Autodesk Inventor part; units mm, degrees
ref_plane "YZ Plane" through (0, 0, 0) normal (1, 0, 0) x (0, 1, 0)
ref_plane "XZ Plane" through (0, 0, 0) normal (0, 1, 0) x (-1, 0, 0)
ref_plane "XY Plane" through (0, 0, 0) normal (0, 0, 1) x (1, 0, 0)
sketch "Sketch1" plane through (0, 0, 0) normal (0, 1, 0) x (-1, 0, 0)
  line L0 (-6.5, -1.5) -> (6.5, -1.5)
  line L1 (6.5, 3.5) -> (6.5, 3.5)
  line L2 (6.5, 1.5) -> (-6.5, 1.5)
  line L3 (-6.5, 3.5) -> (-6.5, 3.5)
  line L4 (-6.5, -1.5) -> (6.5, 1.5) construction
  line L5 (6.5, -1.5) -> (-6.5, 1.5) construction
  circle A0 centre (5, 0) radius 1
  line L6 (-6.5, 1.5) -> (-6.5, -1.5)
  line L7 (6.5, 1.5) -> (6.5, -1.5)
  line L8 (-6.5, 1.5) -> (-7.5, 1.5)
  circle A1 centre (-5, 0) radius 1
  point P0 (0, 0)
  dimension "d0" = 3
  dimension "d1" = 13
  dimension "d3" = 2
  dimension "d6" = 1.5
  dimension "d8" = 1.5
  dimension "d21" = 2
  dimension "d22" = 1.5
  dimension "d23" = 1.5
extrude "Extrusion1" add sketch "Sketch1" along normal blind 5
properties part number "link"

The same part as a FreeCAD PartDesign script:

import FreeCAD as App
import Part
import Sketcher
from FreeCAD import Vector


def add_polygon(sketch, points):
    """Adds a closed chain of lines whose ends are joined by coincident constraints."""
    first, n = sketch.GeometryCount, len(points)
    for a, b in zip(points, points[1:] + points[:1]):
        sketch.addGeometry(Part.LineSegment(App.Vector(*a, 0), App.Vector(*b, 0)), False)
    for i in range(n):
        sketch.addConstraint(Sketcher.Constraint("Coincident", first + i, 2, first + (i + 1) % n, 1))

doc = App.newDocument("Part")
params = doc.addObject("Spreadsheet::Sheet", "Params")
for row, (alias, value) in enumerate([
    ("sketch1_diameter", "2 mm"),
    ("sketch1_width", "13 mm"),
    ("sketch1_height", "3 mm"),
    ("pad1_length", "5 mm"),
], start=1):
    params.set(f"A{row}", alias)
    params.set(f"B{row}", "=" + value)
    params.setAlias(f"B{row}", alias)

body = doc.addObject("PartDesign::Body", "Body")

# Sketch on XZ plane
sketch1 = body.newObject("Sketcher::SketchObject", "Sketch")
sketch1.AttachmentSupport = (doc.getObject("XZ_Plane"), [""])
sketch1.MapMode = "FlatFace"
add_polygon(sketch1, [(6.5, 1.5), (6.5, -1.5), (-6.5, -1.5), (-6.5, 1.5)])  # lines 0-3
sketch1.addGeometry(Part.Circle(Vector(5, 0, 0), Vector(0, 0, 1), 1), False)  # 4
sketch1.addGeometry(Part.Circle(Vector(-5, 0, 0), Vector(0, 0, 1), 1), False)  # 5
sketch1.addConstraint(Sketcher.Constraint("Vertical", 0))
sketch1.addConstraint(Sketcher.Constraint("Horizontal", 1))
sketch1.addConstraint(Sketcher.Constraint("Vertical", 2))
sketch1.addConstraint(Sketcher.Constraint("Horizontal", 3))
sketch1.addConstraint(Sketcher.Constraint("Equal", 4, 5))
sketch1.addConstraint(Sketcher.Constraint("Symmetric", 4, 3, 5, 3, -1, 1))
sketch1.addConstraint(Sketcher.Constraint("Symmetric", 0, 2, 2, 2, -1, 1))
sketch1.addConstraint(Sketcher.Constraint("PointOnObject", 4, 3, -1))
sketch1.addConstraint(Sketcher.Constraint("Diameter", 4, 2.0))
sketch1.addConstraint(Sketcher.Constraint("DistanceX", 1, 2, 1, 1, 13.0))
sketch1.addConstraint(Sketcher.Constraint("DistanceY", 0, 2, 0, 1, 3.0))
sketch1.addConstraint(Sketcher.Constraint("DistanceX", 4, 3, 0, 2, 1.5))
sketch1.setExpression("Constraints[12]", "Params.sketch1_diameter")
sketch1.setExpression("Constraints[13]", "Params.sketch1_width")
sketch1.setExpression("Constraints[14]", "Params.sketch1_height")
pad1 = body.newObject("PartDesign::Pad", "Pad")
pad1.Profile = sketch1
pad1.setExpression("Length", "Params.pad1_length")
pad1.Reversed = True

doc.recompute()
